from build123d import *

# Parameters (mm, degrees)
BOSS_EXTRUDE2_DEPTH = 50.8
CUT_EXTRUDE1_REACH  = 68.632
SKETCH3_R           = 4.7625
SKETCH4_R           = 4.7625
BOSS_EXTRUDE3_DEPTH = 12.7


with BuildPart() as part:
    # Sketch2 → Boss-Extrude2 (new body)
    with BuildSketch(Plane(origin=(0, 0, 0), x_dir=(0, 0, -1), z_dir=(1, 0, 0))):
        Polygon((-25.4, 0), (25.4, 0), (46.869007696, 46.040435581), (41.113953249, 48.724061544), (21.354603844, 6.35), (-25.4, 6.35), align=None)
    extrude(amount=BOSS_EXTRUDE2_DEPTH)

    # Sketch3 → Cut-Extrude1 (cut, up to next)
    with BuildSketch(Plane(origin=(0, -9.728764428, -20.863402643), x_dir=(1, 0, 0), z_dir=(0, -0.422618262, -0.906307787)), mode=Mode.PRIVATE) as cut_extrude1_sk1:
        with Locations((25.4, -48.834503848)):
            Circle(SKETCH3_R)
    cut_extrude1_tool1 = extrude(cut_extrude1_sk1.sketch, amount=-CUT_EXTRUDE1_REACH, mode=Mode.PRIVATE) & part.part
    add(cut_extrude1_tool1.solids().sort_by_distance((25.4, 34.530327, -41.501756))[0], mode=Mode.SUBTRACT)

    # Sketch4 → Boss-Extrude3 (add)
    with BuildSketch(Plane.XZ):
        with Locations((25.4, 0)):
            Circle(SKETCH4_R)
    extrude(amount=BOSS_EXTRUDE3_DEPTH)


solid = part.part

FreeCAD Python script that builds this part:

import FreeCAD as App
import Part
import Sketcher
Q = App.Units.Quantity


def add_polygon(sketch, points):
    """Adds a closed chain of lines whose ends are joined by coincident constraints."""
    first, n = sketch.GeometryCount, len(points)
    for a, b in zip(points, points[1:] + points[:1]):
        sketch.addGeometry(Part.LineSegment(App.Vector(*a, 0), App.Vector(*b, 0)), False)
    for i in range(n):
        sketch.addConstraint(Sketcher.Constraint("Coincident", first + i, 2, first + (i + 1) % n, 1))

doc = App.newDocument("Part")
body = doc.addObject("PartDesign::Body", "Body")

# Sketch on YZ plane
sketch1 = body.newObject("Sketcher::SketchObject", "Sketch")
sketch1.AttachmentSupport = (doc.getObject("YZ_Plane"), [""])
sketch1.MapMode = "FlatFace"
add_polygon(sketch1, [(0, 25), (0, -25), (46, -47), (49, -41), (6, -21), (6, 25)])  # lines 0-5
sketch1.addConstraint([
    Sketcher.Constraint("Vertical", 0),
    Sketcher.Constraint("Vertical", 4),
    Sketcher.Constraint("Horizontal", 5),
    Sketcher.Constraint("Symmetric", 0, 2, 5, 2, -1, 1),
    Sketcher.Constraint("Perpendicular", 1, 2),
    Sketcher.Constraint("Perpendicular", 2, 3),
    Sketcher.Constraint("DistanceY", 0, 2, 0, 1, Q("2 in")),
    Sketcher.Constraint("Distance", 1, Q("2 in")),
    Sketcher.Constraint("Angle", 1, Q("-25 deg")),
    Sketcher.Constraint("DistanceX", 5, 2, 5, 1, Q("0.25 in")),
    Sketcher.Constraint("Distance", 2, Q("0.25 in")),
])
pad1 = body.newObject("PartDesign::Pad", "Pad")
pad1.Profile = sketch1
pad1.Length = Q("2 in")

# Sketch on an angled plane
sketch2 = body.newObject("Sketcher::SketchObject", "Sketch001")
sketch2.Placement = App.Placement(App.Vector(0, -9.728764, -20.863403), App.Rotation(App.Vector(1, 0, 0), App.Vector(0, -0.906307787, 0.422618262), App.Vector(0, -0.422618262, -0.906307787), "ZXY"))
sketch2.addGeometry(Part.Circle(App.Vector(25.4, -48.8, 0), App.Vector(0, 0, 1), 4.8), False)
sketch2.addConstraint([
    Sketcher.Constraint("Diameter", 0, Q("0.375 in")),
    Sketcher.Constraint("DistanceX", -1, 1, 0, 3, Q("1 in")),
    Sketcher.Constraint("DistanceY", 0, 3, -1, 1, Q("48.834504 mm")),
])
pocket1 = body.newObject("PartDesign::Pocket", "Pocket")
pocket1.Profile = sketch2
pocket1.Type = "UpToFirst"

# Sketch on XZ plane
sketch3 = body.newObject("Sketcher::SketchObject", "Sketch002")
sketch3.AttachmentSupport = (doc.getObject("XZ_Plane"), [""])
sketch3.MapMode = "FlatFace"
sketch3.addGeometry(Part.Circle(App.Vector(25.4, 0, 0), App.Vector(0, 0, 1), 4.8), False)
sketch3.addConstraint([
    Sketcher.Constraint("PointOnObject", 0, 3, -1),
    Sketcher.Constraint("Diameter", 0, Q("0.375 in")),
    Sketcher.Constraint("DistanceX", -1, 1, 0, 3, Q("1 in")),
])
pad2 = body.newObject("PartDesign::Pad", "Pad001")
pad2.Profile = sketch3
pad2.Length = Q("0.5 in")

doc.recompute()
